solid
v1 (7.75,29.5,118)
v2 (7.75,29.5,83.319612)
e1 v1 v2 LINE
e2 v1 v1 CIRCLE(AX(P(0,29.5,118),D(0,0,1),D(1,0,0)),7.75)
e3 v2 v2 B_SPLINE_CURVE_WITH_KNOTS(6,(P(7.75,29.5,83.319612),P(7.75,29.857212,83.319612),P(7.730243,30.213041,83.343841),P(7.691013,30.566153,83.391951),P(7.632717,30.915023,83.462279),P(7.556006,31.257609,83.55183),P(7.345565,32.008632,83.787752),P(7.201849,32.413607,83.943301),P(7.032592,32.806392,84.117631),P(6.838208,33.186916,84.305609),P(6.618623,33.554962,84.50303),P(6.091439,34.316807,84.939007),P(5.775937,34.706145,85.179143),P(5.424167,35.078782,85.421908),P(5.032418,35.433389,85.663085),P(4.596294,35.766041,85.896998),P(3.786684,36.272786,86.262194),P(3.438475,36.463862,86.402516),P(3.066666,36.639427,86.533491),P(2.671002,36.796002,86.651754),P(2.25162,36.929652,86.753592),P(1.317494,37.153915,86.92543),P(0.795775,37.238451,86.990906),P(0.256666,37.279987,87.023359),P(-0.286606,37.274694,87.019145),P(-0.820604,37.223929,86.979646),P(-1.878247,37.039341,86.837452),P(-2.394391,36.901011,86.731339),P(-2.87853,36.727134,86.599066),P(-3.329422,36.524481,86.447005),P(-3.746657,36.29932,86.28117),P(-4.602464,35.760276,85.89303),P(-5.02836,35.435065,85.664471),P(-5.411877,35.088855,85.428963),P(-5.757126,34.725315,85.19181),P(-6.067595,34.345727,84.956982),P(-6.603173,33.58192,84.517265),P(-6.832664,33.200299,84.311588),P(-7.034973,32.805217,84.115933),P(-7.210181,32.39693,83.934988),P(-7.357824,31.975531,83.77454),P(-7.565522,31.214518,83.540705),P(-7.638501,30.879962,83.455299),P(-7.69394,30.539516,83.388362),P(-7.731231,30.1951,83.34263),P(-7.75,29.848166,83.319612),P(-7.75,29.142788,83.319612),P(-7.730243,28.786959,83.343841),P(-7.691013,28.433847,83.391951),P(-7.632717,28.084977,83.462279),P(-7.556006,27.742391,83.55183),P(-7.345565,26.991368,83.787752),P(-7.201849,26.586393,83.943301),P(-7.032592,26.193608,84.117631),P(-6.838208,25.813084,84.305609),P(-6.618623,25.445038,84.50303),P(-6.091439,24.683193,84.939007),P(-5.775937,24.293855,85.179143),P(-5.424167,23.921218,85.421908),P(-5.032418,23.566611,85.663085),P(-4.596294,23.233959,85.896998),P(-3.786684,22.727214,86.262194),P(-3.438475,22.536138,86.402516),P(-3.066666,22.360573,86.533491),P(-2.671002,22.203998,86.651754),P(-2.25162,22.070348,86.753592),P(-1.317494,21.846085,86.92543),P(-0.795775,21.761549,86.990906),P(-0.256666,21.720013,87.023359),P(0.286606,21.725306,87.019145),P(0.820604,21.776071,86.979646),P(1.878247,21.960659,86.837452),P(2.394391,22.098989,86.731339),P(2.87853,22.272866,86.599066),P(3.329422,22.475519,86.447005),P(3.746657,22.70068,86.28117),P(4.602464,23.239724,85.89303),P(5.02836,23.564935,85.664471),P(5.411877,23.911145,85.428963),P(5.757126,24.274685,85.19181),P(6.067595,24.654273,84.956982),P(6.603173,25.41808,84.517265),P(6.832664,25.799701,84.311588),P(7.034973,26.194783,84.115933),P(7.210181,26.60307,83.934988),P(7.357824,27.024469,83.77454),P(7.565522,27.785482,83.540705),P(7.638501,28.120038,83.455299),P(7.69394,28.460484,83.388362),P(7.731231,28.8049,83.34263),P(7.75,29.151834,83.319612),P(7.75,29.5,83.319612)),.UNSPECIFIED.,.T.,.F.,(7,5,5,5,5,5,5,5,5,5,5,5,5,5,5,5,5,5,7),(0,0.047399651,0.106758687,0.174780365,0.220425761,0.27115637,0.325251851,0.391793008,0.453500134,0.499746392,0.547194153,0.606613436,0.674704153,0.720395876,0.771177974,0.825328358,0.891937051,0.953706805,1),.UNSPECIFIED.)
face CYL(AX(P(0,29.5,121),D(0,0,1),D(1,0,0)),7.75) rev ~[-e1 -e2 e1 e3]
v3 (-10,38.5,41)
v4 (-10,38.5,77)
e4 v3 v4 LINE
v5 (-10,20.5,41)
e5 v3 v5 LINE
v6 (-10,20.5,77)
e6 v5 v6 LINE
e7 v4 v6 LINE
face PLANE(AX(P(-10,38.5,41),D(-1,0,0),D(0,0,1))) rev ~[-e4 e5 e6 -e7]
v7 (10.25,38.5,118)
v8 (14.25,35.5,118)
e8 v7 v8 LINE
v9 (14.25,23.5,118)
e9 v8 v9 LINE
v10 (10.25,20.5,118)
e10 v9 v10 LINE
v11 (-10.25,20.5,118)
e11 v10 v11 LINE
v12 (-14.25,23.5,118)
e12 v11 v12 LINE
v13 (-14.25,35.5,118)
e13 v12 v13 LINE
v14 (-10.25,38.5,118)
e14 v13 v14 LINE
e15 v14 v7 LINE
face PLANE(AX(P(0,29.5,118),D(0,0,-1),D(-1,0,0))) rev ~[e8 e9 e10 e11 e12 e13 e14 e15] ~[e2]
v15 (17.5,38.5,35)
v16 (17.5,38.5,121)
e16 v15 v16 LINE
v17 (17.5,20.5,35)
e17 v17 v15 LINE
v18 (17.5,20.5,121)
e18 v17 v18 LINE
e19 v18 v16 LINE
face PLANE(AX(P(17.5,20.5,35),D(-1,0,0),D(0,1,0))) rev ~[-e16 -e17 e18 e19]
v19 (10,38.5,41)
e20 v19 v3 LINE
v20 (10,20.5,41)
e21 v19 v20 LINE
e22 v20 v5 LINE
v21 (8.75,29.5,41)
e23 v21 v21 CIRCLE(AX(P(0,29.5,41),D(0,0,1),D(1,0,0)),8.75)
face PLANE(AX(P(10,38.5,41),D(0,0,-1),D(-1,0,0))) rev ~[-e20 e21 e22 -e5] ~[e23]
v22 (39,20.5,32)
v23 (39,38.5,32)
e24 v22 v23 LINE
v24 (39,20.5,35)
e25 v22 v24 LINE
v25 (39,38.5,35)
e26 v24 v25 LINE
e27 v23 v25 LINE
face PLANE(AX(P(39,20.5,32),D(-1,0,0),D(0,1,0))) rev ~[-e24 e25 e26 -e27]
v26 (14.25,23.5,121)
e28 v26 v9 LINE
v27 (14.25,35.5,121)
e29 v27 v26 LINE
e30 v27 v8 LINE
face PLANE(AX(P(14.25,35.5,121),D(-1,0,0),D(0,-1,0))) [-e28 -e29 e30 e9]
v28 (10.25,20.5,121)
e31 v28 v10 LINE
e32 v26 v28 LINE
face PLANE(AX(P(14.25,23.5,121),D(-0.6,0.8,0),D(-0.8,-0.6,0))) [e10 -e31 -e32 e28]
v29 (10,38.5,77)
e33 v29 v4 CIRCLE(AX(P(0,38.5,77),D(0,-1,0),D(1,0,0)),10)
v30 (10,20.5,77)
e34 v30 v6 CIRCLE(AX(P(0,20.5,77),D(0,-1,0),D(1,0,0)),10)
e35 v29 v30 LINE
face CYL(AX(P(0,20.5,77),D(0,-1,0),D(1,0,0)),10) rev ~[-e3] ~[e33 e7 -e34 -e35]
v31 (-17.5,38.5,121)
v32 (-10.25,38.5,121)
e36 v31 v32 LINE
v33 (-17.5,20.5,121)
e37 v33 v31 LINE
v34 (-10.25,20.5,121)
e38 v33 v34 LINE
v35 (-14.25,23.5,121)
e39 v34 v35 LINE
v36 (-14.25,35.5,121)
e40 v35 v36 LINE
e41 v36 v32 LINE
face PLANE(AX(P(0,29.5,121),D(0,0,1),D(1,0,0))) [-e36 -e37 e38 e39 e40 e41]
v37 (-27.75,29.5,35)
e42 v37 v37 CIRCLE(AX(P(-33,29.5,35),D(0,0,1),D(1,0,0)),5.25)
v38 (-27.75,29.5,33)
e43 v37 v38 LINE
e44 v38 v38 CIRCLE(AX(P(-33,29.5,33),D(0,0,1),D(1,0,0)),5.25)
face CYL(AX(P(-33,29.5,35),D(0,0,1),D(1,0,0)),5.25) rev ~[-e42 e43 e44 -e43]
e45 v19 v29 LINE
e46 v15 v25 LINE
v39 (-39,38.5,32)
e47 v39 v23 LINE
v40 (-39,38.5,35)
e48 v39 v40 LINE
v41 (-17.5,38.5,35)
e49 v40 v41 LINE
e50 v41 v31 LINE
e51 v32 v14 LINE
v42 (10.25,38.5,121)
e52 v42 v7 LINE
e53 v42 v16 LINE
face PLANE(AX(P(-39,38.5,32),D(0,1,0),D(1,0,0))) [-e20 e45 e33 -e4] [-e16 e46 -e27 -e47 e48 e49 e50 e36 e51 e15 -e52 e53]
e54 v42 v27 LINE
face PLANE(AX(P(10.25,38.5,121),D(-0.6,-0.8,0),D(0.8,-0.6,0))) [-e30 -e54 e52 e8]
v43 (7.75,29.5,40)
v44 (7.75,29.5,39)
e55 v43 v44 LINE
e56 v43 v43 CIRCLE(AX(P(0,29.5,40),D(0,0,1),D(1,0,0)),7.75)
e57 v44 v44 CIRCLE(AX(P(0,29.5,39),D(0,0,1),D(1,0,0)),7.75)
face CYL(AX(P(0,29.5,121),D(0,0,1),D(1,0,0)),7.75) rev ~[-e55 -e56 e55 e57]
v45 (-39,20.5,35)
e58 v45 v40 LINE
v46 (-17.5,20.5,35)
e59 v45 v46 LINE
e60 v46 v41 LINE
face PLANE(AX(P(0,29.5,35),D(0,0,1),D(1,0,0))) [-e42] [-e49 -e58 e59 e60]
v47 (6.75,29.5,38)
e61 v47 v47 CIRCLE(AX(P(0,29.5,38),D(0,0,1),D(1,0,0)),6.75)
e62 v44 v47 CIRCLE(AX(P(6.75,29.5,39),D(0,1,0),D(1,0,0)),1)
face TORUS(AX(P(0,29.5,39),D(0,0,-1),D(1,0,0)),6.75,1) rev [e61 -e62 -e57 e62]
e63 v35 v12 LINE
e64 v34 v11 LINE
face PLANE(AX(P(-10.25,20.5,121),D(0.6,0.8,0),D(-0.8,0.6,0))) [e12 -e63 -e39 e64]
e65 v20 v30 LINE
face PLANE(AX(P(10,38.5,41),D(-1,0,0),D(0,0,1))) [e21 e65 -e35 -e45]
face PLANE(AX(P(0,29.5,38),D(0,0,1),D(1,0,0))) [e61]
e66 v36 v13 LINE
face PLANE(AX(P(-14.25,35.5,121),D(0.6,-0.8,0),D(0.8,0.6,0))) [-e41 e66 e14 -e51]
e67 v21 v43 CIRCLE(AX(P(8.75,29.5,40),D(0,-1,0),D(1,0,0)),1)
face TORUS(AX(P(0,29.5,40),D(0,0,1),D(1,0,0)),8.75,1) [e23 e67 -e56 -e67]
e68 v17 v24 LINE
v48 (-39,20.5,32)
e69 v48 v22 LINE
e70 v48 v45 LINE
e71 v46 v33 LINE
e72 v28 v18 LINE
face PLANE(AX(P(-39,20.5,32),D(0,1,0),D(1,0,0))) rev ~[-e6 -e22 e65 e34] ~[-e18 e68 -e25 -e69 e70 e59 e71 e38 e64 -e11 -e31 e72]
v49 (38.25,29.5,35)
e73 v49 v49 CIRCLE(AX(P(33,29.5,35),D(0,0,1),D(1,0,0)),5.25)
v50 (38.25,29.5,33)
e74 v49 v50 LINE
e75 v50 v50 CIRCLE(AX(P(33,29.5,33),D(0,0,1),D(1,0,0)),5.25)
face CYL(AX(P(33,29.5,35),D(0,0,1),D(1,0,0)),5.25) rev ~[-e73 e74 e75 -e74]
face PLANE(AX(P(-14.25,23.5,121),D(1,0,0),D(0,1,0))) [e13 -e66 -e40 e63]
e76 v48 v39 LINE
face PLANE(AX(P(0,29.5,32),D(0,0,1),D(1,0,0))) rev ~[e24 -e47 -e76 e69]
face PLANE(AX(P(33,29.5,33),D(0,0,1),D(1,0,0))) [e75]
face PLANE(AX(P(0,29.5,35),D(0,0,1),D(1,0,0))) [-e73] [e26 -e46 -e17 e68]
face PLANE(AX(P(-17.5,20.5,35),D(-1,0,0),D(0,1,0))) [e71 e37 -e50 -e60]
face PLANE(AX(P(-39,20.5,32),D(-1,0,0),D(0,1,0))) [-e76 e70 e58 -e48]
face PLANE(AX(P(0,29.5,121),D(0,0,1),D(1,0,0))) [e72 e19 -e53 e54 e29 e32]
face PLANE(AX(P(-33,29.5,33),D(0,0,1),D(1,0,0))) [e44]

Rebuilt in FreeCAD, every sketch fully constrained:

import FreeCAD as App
import Part
import Sketcher

V = App.Vector
Q = App.Units.Quantity


def edges_at(feature, points):
    """Names of the edges that pass closest to the given points."""
    edges = feature.Shape.Edges
    near = lambda p: min(range(len(edges)), key=lambda i: edges[i].distToShape(Part.Vertex(*p))[0])
    return sorted({f"Edge{near(p) + 1}" for p in points})

doc = App.newDocument("Part")
body = doc.addObject("PartDesign::Body", "Body")

# Sketch on XY plane
sketch1 = doc.addObject("Sketcher::SketchObject", "Sketch")
body.addObject(sketch1)
sketch1.AttachmentSupport = (doc.XY_Plane, [""])
sketch1.MapMode = "FlatFace"
sketch1.addGeometry([
    Part.LineSegment(V(-39, 38.5, 0), V(-39, 20.5, 0)),
    Part.LineSegment(V(-39, 20.5, 0), V(39, 20.5, 0)),
    Part.LineSegment(V(39, 20.5, 0), V(39, 38.5, 0)),
    Part.LineSegment(V(39, 38.5, 0), V(-39, 38.5, 0)),
], False)
sketch1.addConstraint([
    Sketcher.Constraint("Coincident", 0, 2, 1, 1),
    Sketcher.Constraint("Coincident", 1, 2, 2, 1),
    Sketcher.Constraint("Coincident", 2, 2, 3, 1),
    Sketcher.Constraint("Coincident", 3, 2, 0, 1),
    Sketcher.Constraint("Vertical", 0),
    Sketcher.Constraint("Horizontal", 1),
    Sketcher.Constraint("Vertical", 2),
    Sketcher.Constraint("Horizontal", 3),
    Sketcher.Constraint("DistanceX", 1, 1, 1, 2, Q("78 mm")),
    Sketcher.Constraint("DistanceY", 0, 2, 0, 1, Q("18 mm")),
    Sketcher.Constraint("DistanceX", 0, 2, -1, 1, Q("39 mm")),
    Sketcher.Constraint("DistanceY", -1, 1, 0, 2, Q("20.5 mm")),
])
pad1 = doc.addObject("PartDesign::Pad", "Pad")
body.addObject(pad1)
pad1.Profile = sketch1
pad1.Length = 3

# Sketch on XY plane
sketch2 = doc.addObject("Sketcher::SketchObject", "Sketch001")
body.addObject(sketch2)
sketch2.AttachmentSupport = (doc.XY_Plane, [""])
sketch2.MapMode = "FlatFace"
sketch2.AttachmentOffset = App.Placement(V(0, 0, 3), App.Rotation())
sketch2.addGeometry(Part.Circle(V(-33, 29.5, 0), V(0, 0, 1), 5.25), False)
sketch2.addConstraint([
    Sketcher.Constraint("Diameter", 0, Q("10.5 mm")),
    Sketcher.Constraint("DistanceX", 0, 3, -1, 1, Q("33 mm")),
    Sketcher.Constraint("DistanceY", -1, 1, 0, 3, Q("29.5 mm")),
])
pocket1 = doc.addObject("PartDesign::Pocket", "Pocket")
body.addObject(pocket1)
pocket1.Profile = sketch2
pocket1.Length = 2
doc.recompute()

linearpattern = doc.addObject("PartDesign::LinearPattern", "LinearPattern")
body.addObject(linearpattern)
linearpattern.Originals = [pocket1]
linearpattern.Direction = (doc.X_Axis, [""])
linearpattern.Mode = "offset"
linearpattern.Offset = 66
linearpattern.Occurrences = 2
body.Tip = linearpattern

# Sketch on XY plane
sketch3 = doc.addObject("Sketcher::SketchObject", "Sketch002")
body.addObject(sketch3)
sketch3.AttachmentSupport = (doc.XY_Plane, [""])
sketch3.MapMode = "FlatFace"
sketch3.AttachmentOffset = App.Placement(V(0, 0, 3), App.Rotation())
sketch3.addGeometry([
    Part.LineSegment(V(-17.5, 38.5, 0), V(-17.5, 20.5, 0)),
    Part.LineSegment(V(-17.5, 20.5, 0), V(17.5, 20.5, 0)),
    Part.LineSegment(V(17.5, 20.5, 0), V(17.5, 38.5, 0)),
    Part.LineSegment(V(17.5, 38.5, 0), V(-17.5, 38.5, 0)),
], False)
sketch3.addConstraint([
    Sketcher.Constraint("Coincident", 0, 2, 1, 1),
    Sketcher.Constraint("Coincident", 1, 2, 2, 1),
    Sketcher.Constraint("Coincident", 2, 2, 3, 1),
    Sketcher.Constraint("Coincident", 3, 2, 0, 1),
    Sketcher.Constraint("Vertical", 0),
    Sketcher.Constraint("Horizontal", 1),
    Sketcher.Constraint("Vertical", 2),
    Sketcher.Constraint("Horizontal", 3),
    Sketcher.Constraint("DistanceX", 1, 1, 1, 2, Q("35 mm")),
    Sketcher.Constraint("DistanceY", 0, 2, 0, 1, Q("18 mm")),
    Sketcher.Constraint("DistanceX", 0, 2, -1, 1, Q("17.5 mm")),
    Sketcher.Constraint("DistanceY", -1, 1, 0, 2, Q("20.5 mm")),
])
pad2 = doc.addObject("PartDesign::Pad", "Pad001")
body.addObject(pad2)
pad2.Profile = sketch3
pad2.Length = 86

# Sketch on XY plane
sketch4 = doc.addObject("Sketcher::SketchObject", "Sketch003")
body.addObject(sketch4)
sketch4.AttachmentSupport = (doc.XY_Plane, [""])
sketch4.MapMode = "FlatFace"
sketch4.AttachmentOffset = App.Placement(V(0, 0, 89), App.Rotation())
sketch4.addGeometry(Part.Circle(V(0, 29.5, 0), V(0, 0, 1), 7.75), False)
sketch4.addConstraint([
    Sketcher.Constraint("PointOnObject", 0, 3, -2),
    Sketcher.Constraint("Diameter", 0, Q("15.5 mm")),
    Sketcher.Constraint("DistanceY", -1, 1, 0, 3, Q("29.5 mm")),
])
pocket2 = doc.addObject("PartDesign::Pocket", "Pocket001")
body.addObject(pocket2)
pocket2.Profile = sketch4
pocket2.Length = 83

# Sketch on XY plane
sketch5 = doc.addObject("Sketcher::SketchObject", "Sketch004")
body.addObject(sketch5)
sketch5.AttachmentSupport = (doc.XY_Plane, [""])
sketch5.MapMode = "FlatFace"
sketch5.AttachmentOffset = App.Placement(V(0, 0, 89), App.Rotation())
sketch5.addGeometry([
    Part.LineSegment(V(10.25, 38.5, 0), V(-10.25, 38.5, 0)),  # 0
    Part.LineSegment(V(-10.25, 38.5, 0), V(-14.25, 35.5, 0)),  # 1
    Part.LineSegment(V(-14.25, 35.5, 0), V(-14.25, 23.5, 0)),  # 2
    Part.LineSegment(V(-14.25, 23.5, 0), V(-10.25, 20.5, 0)),  # 3
    Part.LineSegment(V(-10.25, 20.5, 0), V(10.25, 20.5, 0)),  # 4
    Part.LineSegment(V(10.25, 20.5, 0), V(14.25, 23.5, 0)),  # 5
    Part.LineSegment(V(14.25, 23.5, 0), V(14.25, 35.5, 0)),  # 6
    Part.LineSegment(V(14.25, 35.5, 0), V(10.25, 38.5, 0)),  # 7
], False)
sketch5.addConstraint([
    Sketcher.Constraint("Coincident", 0, 2, 1, 1),
    Sketcher.Constraint("Coincident", 1, 2, 2, 1),
    Sketcher.Constraint("Coincident", 2, 2, 3, 1),
    Sketcher.Constraint("Coincident", 3, 2, 4, 1),
    Sketcher.Constraint("Coincident", 4, 2, 5, 1),
    Sketcher.Constraint("Coincident", 5, 2, 6, 1),
    Sketcher.Constraint("Coincident", 6, 2, 7, 1),
    Sketcher.Constraint("Coincident", 7, 2, 0, 1),
    Sketcher.Constraint("Horizontal", 0),
    Sketcher.Constraint("Vertical", 2),
    Sketcher.Constraint("Horizontal", 4),
    Sketcher.Constraint("Vertical", 6),
    Sketcher.Constraint("Symmetric", 2, 2, 5, 2, -2),
    Sketcher.Constraint("Parallel", 1, 5),
    Sketcher.Constraint("Parallel", 3, 7),
    Sketcher.Constraint("Horizontal", 1, 2, 6, 2),
    Sketcher.Constraint("Vertical", 0, 2, 3, 2),
    Sketcher.Constraint("Vertical", 4, 2, 7, 2),
    Sketcher.Constraint("DistanceY", 2, 2, 2, 1, Q("12 mm")),
    Sketcher.Constraint("Distance", 1, Q("5 mm")),
    Sketcher.Constraint("DistanceX", 0, 2, 0, 1, Q("20.5 mm")),
    Sketcher.Constraint("DistanceX", 1, 2, 0, 2, Q("4 mm")),
    Sketcher.Constraint("DistanceY", -1, 1, 0, 2, Q("38.5 mm")),
])
pocket3 = doc.addObject("PartDesign::Pocket", "Pocket002")
body.addObject(pocket3)
pocket3.Profile = sketch5
pocket3.Length = 3

# Sketch on XZ plane
sketch6 = doc.addObject("Sketcher::SketchObject", "Sketch005")
body.addObject(sketch6)
sketch6.AttachmentSupport = (doc.XZ_Plane, [""])
sketch6.MapMode = "FlatFace"
sketch6.AttachmentOffset = App.Placement(V(0, 0, -38.5), App.Rotation())
sketch6.addGeometry([
    Part.LineSegment(V(10, 45, 0), V(10, 9, 0)),
    Part.LineSegment(V(10, 9, 0), V(-10, 9, 0)),
    Part.LineSegment(V(-10, 9, 0), V(-10, 45, 0)),
    Part.LineSegment(V(-10, 45, 0), V(10, 45, 0)),
], False)
sketch6.addConstraint([
    Sketcher.Constraint("Coincident", 0, 2, 1, 1),
    Sketcher.Constraint("Coincident", 1, 2, 2, 1),
    Sketcher.Constraint("Coincident", 2, 2, 3, 1),
    Sketcher.Constraint("Coincident", 3, 2, 0, 1),
    Sketcher.Constraint("Vertical", 0),
    Sketcher.Constraint("Horizontal", 1),
    Sketcher.Constraint("Vertical", 2),
    Sketcher.Constraint("Horizontal", 3),
    Sketcher.Constraint("DistanceX", 1, 2, 1, 1, Q("20 mm")),
    Sketcher.Constraint("DistanceY", 0, 2, 0, 1, Q("36 mm")),
    Sketcher.Constraint("DistanceX", -1, 1, 0, 2, Q("10 mm")),
    Sketcher.Constraint("DistanceY", -1, 1, 0, 2, Q("9 mm")),
])
pocket4 = doc.addObject("PartDesign::Pocket", "Pocket003")
body.addObject(pocket4)
pocket4.Profile = sketch6
pocket4.Type = "ThroughAll"
pocket4.Reversed = True

# Sketch on XZ plane
sketch7 = doc.addObject("Sketcher::SketchObject", "Sketch006")
body.addObject(sketch7)
sketch7.AttachmentSupport = (doc.XZ_Plane, [""])
sketch7.MapMode = "FlatFace"
sketch7.AttachmentOffset = App.Placement(V(0, 0, -20.5), App.Rotation())
sketch7.addGeometry(Part.Circle(V(0, 45, 0), V(0, 0, 1), 10), False)
sketch7.addConstraint([
    Sketcher.Constraint("PointOnObject", 0, 3, -2),
    Sketcher.Constraint("Diameter", 0, Q("20 mm")),
    Sketcher.Constraint("DistanceY", -1, 1, 0, 3, Q("45 mm")),
])
pocket5 = doc.addObject("PartDesign::Pocket", "Pocket004")
body.addObject(pocket5)
pocket5.Profile = sketch7
pocket5.Type = "ThroughAll"
doc.recompute()

fillet = doc.addObject("PartDesign::Fillet", "Fillet")
body.addObject(fillet)
fillet.Base = (pocket5, edges_at(pocket5, [(-7.75, 29.5, 9), (7.75, 29.5, 7.5), (-7.75, 29.5, 6)]))
fillet.Radius = 1
body2 = doc.addObject("PartDesign::Body", "Body001")
doc.recompute()

body.Placement = App.Placement(V(0, 0, 32), App.Rotation(V(0, 0, 1), 0))
boolean = doc.addObject("PartDesign::Boolean", "Boolean")
body2.addObject(boolean)
boolean.Type = "Fuse"
boolean.addObjects([body])

doc.recompute()
